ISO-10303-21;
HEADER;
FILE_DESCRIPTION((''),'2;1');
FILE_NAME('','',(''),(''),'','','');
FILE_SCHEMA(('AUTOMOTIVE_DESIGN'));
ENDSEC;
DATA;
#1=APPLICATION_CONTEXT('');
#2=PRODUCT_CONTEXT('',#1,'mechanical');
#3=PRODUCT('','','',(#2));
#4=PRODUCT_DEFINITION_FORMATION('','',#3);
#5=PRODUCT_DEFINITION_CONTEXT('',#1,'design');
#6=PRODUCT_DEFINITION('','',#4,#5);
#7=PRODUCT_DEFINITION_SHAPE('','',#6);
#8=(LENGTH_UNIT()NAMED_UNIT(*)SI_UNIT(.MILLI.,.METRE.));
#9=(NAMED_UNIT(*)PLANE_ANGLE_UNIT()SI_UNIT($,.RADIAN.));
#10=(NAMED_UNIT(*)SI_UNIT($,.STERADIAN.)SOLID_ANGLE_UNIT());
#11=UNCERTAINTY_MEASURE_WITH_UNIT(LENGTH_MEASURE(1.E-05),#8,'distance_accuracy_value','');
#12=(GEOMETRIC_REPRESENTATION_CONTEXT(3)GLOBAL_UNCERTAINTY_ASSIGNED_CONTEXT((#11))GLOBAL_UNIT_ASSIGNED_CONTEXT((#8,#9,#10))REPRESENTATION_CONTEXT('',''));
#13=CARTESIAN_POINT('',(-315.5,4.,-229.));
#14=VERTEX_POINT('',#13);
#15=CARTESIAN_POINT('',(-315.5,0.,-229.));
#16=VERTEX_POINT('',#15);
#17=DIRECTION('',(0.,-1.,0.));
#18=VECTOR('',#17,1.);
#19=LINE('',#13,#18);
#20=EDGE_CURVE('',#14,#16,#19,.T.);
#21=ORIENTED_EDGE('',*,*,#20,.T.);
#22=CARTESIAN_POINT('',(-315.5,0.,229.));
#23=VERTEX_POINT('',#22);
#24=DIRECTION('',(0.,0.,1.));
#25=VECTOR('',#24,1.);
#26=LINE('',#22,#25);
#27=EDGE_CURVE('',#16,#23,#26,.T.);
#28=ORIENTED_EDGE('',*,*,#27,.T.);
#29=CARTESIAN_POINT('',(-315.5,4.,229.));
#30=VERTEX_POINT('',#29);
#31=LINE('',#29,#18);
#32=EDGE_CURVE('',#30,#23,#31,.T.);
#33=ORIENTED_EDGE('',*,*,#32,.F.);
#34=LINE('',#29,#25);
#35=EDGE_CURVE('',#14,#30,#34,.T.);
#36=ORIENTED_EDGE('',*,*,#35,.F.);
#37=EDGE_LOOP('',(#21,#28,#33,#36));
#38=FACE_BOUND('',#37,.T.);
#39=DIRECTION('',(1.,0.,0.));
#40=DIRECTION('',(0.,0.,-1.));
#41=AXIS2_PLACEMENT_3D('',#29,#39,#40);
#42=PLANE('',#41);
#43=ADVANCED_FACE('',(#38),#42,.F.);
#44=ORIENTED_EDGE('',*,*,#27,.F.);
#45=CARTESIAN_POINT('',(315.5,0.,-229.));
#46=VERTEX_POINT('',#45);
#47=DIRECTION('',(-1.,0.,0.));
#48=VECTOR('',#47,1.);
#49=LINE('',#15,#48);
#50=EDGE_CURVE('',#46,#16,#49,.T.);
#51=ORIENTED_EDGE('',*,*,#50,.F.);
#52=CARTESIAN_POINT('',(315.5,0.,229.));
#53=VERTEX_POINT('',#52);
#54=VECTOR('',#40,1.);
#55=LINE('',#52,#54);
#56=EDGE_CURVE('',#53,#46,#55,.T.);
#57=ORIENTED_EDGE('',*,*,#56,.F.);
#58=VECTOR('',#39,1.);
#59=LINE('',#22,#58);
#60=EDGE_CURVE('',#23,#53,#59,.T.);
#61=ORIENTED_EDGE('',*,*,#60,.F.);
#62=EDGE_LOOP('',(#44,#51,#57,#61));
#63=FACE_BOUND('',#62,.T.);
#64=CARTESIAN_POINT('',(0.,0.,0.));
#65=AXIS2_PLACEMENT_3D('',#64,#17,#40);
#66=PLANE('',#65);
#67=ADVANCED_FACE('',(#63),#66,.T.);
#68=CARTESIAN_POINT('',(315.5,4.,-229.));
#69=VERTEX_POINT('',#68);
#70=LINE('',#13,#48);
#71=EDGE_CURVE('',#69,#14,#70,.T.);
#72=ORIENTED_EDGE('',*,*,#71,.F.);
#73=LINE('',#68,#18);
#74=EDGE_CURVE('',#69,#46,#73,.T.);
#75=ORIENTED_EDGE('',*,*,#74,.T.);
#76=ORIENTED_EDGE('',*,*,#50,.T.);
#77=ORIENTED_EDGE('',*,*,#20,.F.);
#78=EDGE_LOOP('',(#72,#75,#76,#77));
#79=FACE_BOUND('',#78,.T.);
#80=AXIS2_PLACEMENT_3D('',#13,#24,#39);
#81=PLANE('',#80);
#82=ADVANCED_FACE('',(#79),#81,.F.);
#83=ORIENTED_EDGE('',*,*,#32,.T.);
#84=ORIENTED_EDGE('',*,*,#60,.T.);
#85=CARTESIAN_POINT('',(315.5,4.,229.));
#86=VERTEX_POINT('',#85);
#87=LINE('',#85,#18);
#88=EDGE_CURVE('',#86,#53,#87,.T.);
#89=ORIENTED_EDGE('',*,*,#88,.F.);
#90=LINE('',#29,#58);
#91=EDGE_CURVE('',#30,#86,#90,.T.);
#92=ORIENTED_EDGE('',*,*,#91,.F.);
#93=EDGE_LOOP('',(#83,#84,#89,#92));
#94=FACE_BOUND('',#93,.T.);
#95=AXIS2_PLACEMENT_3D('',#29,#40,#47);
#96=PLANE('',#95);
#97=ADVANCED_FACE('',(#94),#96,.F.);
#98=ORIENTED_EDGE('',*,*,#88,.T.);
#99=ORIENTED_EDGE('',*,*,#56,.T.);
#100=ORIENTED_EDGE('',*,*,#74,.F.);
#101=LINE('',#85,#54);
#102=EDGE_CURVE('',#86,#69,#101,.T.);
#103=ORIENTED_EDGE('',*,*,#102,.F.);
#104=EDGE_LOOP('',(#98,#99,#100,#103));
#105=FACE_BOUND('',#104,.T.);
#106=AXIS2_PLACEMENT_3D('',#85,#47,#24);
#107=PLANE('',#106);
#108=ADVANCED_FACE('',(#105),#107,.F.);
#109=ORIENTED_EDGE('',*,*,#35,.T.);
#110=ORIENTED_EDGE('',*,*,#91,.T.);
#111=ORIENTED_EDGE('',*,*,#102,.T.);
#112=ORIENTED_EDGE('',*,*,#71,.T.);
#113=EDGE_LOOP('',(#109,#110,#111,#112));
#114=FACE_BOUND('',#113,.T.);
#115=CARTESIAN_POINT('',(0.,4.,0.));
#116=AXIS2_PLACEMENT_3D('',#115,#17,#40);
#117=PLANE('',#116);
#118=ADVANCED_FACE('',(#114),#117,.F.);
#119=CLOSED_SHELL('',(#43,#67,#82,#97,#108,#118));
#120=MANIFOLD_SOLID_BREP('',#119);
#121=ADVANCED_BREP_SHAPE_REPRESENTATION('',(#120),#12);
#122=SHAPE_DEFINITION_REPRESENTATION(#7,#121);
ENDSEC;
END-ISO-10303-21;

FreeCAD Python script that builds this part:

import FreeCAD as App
import Part
import Sketcher

doc = App.newDocument("Part")
body = doc.addObject("PartDesign::Body", "Body")

# Sketch on XZ plane
sketch1 = doc.addObject("Sketcher::SketchObject", "Sketch")
body.addObject(sketch1)
sketch1.AttachmentSupport = (doc.XZ_Plane, [""])
sketch1.MapMode = "FlatFace"
sketch1.addGeometry(Part.LineSegment(App.Vector(-315.5, -229, 0), App.Vector(-315.5, 229, 0)), False)
sketch1.addGeometry(Part.LineSegment(App.Vector(-315.5, 229, 0), App.Vector(315.5, 229, 0)), False)
sketch1.addGeometry(Part.LineSegment(App.Vector(315.5, 229, 0), App.Vector(315.5, -229, 0)), False)
sketch1.addGeometry(Part.LineSegment(App.Vector(315.5, -229, 0), App.Vector(-315.5, -229, 0)), False)
sketch1.addConstraint(Sketcher.Constraint("Coincident", 0, 2, 1, 1))
sketch1.addConstraint(Sketcher.Constraint("Coincident", 1, 2, 2, 1))
sketch1.addConstraint(Sketcher.Constraint("Coincident", 2, 2, 3, 1))
sketch1.addConstraint(Sketcher.Constraint("Coincident", 3, 2, 0, 1))
sketch1.addConstraint(Sketcher.Constraint("Vertical", 0))
sketch1.addConstraint(Sketcher.Constraint("Horizontal", 1))
sketch1.addConstraint(Sketcher.Constraint("Vertical", 2))
sketch1.addConstraint(Sketcher.Constraint("Horizontal", 3))
sketch1.addConstraint(Sketcher.Constraint("Symmetric", 0, 2, 2, 2, -1, 1))
sketch1.addConstraint(Sketcher.Constraint("DistanceX", 1, 1, 1, 2, 631.0))
sketch1.addConstraint(Sketcher.Constraint("DistanceY", 0, 1, 0, 2, 458.0))
pad1 = doc.addObject("PartDesign::Pad", "Pad")
body.addObject(pad1)
pad1.Profile = sketch1
pad1.Length = 4
pad1.Reversed = True

doc.recompute()
